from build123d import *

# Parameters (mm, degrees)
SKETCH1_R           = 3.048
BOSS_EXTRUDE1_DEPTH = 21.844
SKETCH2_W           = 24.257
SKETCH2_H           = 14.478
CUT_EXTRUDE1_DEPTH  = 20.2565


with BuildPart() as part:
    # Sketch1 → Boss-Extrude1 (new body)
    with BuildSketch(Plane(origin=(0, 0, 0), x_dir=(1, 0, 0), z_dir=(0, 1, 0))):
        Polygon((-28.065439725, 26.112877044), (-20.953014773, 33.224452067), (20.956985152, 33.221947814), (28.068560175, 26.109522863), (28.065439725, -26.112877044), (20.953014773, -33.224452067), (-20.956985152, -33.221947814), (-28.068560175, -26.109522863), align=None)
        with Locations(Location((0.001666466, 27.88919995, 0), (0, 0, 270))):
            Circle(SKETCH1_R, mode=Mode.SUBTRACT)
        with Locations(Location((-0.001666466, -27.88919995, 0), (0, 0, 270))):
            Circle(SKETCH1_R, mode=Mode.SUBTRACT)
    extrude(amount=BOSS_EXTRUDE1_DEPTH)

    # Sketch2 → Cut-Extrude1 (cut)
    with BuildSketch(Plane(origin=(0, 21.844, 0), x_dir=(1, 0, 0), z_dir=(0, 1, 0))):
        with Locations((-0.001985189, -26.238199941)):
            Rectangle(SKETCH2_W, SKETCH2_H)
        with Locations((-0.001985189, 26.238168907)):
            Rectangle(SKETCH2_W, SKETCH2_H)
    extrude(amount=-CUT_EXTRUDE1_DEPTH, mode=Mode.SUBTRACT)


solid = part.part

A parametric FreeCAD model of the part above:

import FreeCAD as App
import Part
import Sketcher

V = App.Vector
Q = App.Units.Quantity

doc = App.newDocument("Part")
body = doc.addObject("PartDesign::Body", "Body")

# Sketch on XZ plane
sketch1 = body.newObject("Sketcher::SketchObject", "Sketch")
sketch1.AttachmentSupport = (doc.getObject("XZ_Plane"), [""])
sketch1.MapMode = "FlatFace"
sketch1.addGeometry(Part.LineSegment(V(-21, -33.2, 0), V(-28.1, -26.1, 0)), False)
sketch1.addGeometry(Part.LineSegment(V(-28.1, -26.1, 0), V(-28.1, 26.1, 0)), False)
sketch1.addGeometry(Part.LineSegment(V(-28.1, 26.1, 0), V(-21, 33.2, 0)), False)
sketch1.addGeometry(Part.LineSegment(V(-21, 33.2, 0), V(21, 33.2, 0)), False)
sketch1.addGeometry(Part.LineSegment(V(21, 33.2, 0), V(28.1, 26.1, 0)), False)
sketch1.addGeometry(Part.LineSegment(V(28.1, 26.1, 0), V(28.1, -26.1, 0)), False)
sketch1.addGeometry(Part.LineSegment(V(28.1, -26.1, 0), V(21, -33.2, 0)), False)
sketch1.addGeometry(Part.LineSegment(V(21, -33.2, 0), V(-21, -33.2, 0)), False)
sketch1.addGeometry(Part.Circle(V(0, 27.9, 0), V(0, 0, 1), 3), False)
sketch1.addGeometry(Part.Circle(V(0, -27.9, 0), V(0, 0, 1), 3), False)
sketch1.addConstraint(Sketcher.Constraint("Coincident", 0, 2, 1, 1))
sketch1.addConstraint(Sketcher.Constraint("Coincident", 1, 2, 2, 1))
sketch1.addConstraint(Sketcher.Constraint("Coincident", 2, 2, 3, 1))
sketch1.addConstraint(Sketcher.Constraint("Coincident", 3, 2, 4, 1))
sketch1.addConstraint(Sketcher.Constraint("Coincident", 4, 2, 5, 1))
sketch1.addConstraint(Sketcher.Constraint("Coincident", 5, 2, 6, 1))
sketch1.addConstraint(Sketcher.Constraint("Coincident", 6, 2, 7, 1))
sketch1.addConstraint(Sketcher.Constraint("Coincident", 7, 2, 0, 1))
sketch1.addConstraint(Sketcher.Constraint("Equal", 8, 9))
sketch1.addConstraint(Sketcher.Constraint("Symmetric", 8, 3, 9, 3, -1, 1))
sketch1.addConstraint(Sketcher.Constraint("Symmetric", 0, 2, 4, 2, -1, 1))
sketch1.addConstraint(Sketcher.Constraint("Symmetric", 1, 2, 5, 2, -1, 1))
sketch1.addConstraint(Sketcher.Constraint("Symmetric", 2, 2, 6, 2, -1, 1))
sketch1.addConstraint(Sketcher.Constraint("Symmetric", 3, 2, 7, 2, -1, 1))
sketch1.addConstraint(Sketcher.Constraint("Perpendicular", 0, 2))
sketch1.addConstraint(Sketcher.Constraint("Perpendicular", 1, 3))
sketch1.addConstraint(Sketcher.Constraint("Equal", 0, 2))
sketch1.addConstraint(Sketcher.Constraint("Diameter", 8, Q("0.24 in")))
sketch1.addConstraint(Sketcher.Constraint("Distance", 3, Q("1.65 in")))
sketch1.addConstraint(Sketcher.Constraint("DistanceX", 1, 2, 4, 2, Q("2.21 in")))
sketch1.addConstraint(Sketcher.Constraint("Distance", 1, Q("2.056 in")))
sketch1.addConstraint(Sketcher.Constraint("DistanceY", -1, 1, 8, 3, Q("1.098 in")))
sketch1.addConstraint(Sketcher.Constraint("DistanceX", 0, 2, -1, 1, 28.06544))
sketch1.addConstraint(Sketcher.Constraint("DistanceX", 2, 2, 8, 3, 20.955319))
sketch1.addConstraint(Sketcher.Constraint("DistanceX", 2, 2, 9, 3, 20.958652))
pad1 = body.newObject("PartDesign::Pad", "Pad")
pad1.Profile = sketch1
pad1.Length = Q("0.86 in")
pad1.Reversed = True

# Sketch on XZ plane
sketch2 = body.newObject("Sketcher::SketchObject", "Sketch001")
sketch2.AttachmentSupport = (doc.getObject("XZ_Plane"), [""])
sketch2.MapMode = "FlatFace"
sketch2.AttachmentOffset = App.Placement(V(0, 0, -0.86 * 25.4), App.Rotation())
sketch2.addGeometry(Part.LineSegment(V(-12, 19, 0), V(-12, 33, 0)), False)
sketch2.addGeometry(Part.LineSegment(V(-12, 33, 0), V(12, 33, 0)), False)
sketch2.addGeometry(Part.LineSegment(V(12, 33, 0), V(12, 19, 0)), False)
sketch2.addGeometry(Part.LineSegment(V(12, 19, 0), V(-12, 19, 0)), False)
sketch2.addGeometry(Part.LineSegment(V(-12, -33, 0), V(-12, -19, 0)), False)
sketch2.addGeometry(Part.LineSegment(V(-12, -19, 0), V(12, -19, 0)), False)
sketch2.addGeometry(Part.LineSegment(V(12, -19, 0), V(12, -33, 0)), False)
sketch2.addGeometry(Part.LineSegment(V(12, -33, 0), V(-12, -33, 0)), False)
sketch2.addConstraint(Sketcher.Constraint("Coincident", 0, 2, 1, 1))
sketch2.addConstraint(Sketcher.Constraint("Coincident", 1, 2, 2, 1))
sketch2.addConstraint(Sketcher.Constraint("Coincident", 2, 2, 3, 1))
sketch2.addConstraint(Sketcher.Constraint("Coincident", 3, 2, 0, 1))
sketch2.addConstraint(Sketcher.Constraint("Coincident", 4, 2, 5, 1))
sketch2.addConstraint(Sketcher.Constraint("Coincident", 5, 2, 6, 1))
sketch2.addConstraint(Sketcher.Constraint("Coincident", 6, 2, 7, 1))
sketch2.addConstraint(Sketcher.Constraint("Coincident", 7, 2, 4, 1))
sketch2.addConstraint(Sketcher.Constraint("Vertical", 0))
sketch2.addConstraint(Sketcher.Constraint("Horizontal", 1))
sketch2.addConstraint(Sketcher.Constraint("Vertical", 2))
sketch2.addConstraint(Sketcher.Constraint("Horizontal", 3))
sketch2.addConstraint(Sketcher.Constraint("Vertical", 4))
sketch2.addConstraint(Sketcher.Constraint("Horizontal", 5))
sketch2.addConstraint(Sketcher.Constraint("Vertical", 6))
sketch2.addConstraint(Sketcher.Constraint("Horizontal", 7))
sketch2.addConstraint(Sketcher.Constraint("Vertical", 3, 2, 4, 2))
sketch2.addConstraint(Sketcher.Constraint("Vertical", 2, 2, 5, 2))
sketch2.addConstraint(Sketcher.Constraint("Equal", 2, 4))
sketch2.addConstraint(Sketcher.Constraint("DistanceY", 0, 1, 0, 2, Q("0.57 in")))
sketch2.addConstraint(Sketcher.Constraint("DistanceX", 1, 1, 1, 2, Q("0.955 in")))
sketch2.addConstraint(Sketcher.Constraint("DistanceY", -1, 1, 0, 2, Q("1.318 in")))
sketch2.addConstraint(Sketcher.Constraint("DistanceY", 4, 2, -1, 1, 18.999169))
sketch2.addConstraint(Sketcher.Constraint("DistanceX", 0, 2, -1, 1, 12.130485))
pocket1 = body.newObject("PartDesign::Pocket", "Pocket")
pocket1.Profile = sketch2
pocket1.Length = Q("0.7975 in")
pocket1.Reversed = True

doc.recompute()
